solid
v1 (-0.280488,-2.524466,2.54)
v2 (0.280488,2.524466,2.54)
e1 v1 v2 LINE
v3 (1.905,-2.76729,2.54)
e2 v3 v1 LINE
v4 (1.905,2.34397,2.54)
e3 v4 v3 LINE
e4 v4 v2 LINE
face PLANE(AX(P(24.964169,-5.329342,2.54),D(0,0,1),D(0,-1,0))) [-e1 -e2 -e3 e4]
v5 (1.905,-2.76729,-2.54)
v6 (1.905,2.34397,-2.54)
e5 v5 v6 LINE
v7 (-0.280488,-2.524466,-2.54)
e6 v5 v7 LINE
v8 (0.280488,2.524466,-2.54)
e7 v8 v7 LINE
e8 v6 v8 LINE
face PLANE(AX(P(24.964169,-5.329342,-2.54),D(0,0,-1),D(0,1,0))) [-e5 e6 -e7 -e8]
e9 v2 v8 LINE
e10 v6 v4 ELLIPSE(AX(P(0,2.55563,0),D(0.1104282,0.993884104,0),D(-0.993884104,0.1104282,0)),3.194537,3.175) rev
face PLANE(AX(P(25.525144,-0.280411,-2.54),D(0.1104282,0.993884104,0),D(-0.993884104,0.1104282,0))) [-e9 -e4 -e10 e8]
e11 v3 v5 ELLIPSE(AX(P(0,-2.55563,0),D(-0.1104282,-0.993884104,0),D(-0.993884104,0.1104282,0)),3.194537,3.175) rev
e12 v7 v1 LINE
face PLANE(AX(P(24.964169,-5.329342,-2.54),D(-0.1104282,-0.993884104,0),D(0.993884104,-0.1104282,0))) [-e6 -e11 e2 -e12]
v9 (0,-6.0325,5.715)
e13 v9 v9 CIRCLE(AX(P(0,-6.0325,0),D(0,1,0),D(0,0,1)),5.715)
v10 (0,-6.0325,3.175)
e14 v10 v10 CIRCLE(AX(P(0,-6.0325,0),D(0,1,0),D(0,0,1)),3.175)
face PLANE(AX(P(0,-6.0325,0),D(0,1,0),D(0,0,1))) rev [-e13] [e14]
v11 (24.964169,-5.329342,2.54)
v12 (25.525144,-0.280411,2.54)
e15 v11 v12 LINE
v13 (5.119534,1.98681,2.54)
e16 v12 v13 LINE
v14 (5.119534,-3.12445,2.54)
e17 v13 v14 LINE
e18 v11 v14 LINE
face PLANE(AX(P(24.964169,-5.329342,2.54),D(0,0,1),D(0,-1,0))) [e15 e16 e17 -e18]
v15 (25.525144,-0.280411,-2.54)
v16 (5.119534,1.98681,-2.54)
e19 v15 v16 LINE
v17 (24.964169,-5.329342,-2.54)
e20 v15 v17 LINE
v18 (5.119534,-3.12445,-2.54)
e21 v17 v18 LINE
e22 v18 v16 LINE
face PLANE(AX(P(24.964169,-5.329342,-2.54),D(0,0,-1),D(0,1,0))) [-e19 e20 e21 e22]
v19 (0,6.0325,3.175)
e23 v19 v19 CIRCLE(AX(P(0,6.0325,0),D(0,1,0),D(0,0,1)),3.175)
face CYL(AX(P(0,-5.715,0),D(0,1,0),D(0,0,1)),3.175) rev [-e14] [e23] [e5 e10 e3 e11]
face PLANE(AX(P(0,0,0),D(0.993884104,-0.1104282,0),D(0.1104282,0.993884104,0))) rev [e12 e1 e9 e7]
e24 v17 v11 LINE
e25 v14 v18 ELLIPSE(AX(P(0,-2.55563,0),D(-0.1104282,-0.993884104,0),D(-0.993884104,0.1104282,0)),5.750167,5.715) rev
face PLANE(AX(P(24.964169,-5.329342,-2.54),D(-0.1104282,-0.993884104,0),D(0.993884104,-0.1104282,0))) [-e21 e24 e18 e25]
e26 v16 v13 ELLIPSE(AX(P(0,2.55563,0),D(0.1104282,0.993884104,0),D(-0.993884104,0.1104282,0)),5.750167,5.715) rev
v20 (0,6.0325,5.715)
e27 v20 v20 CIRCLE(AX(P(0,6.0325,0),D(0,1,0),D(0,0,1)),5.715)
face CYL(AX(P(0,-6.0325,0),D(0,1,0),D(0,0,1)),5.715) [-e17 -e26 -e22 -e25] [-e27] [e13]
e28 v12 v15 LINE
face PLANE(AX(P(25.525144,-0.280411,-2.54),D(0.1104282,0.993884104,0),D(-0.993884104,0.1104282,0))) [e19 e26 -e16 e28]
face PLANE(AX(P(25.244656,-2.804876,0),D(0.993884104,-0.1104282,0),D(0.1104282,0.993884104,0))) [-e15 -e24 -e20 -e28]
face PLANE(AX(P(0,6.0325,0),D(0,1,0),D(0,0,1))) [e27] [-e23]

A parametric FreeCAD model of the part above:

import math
import FreeCAD as App
import Part
import Sketcher
Q = App.Units.Quantity

doc = App.newDocument("Part")
body = doc.addObject("PartDesign::Body", "Body")

# Sketch on XY plane
sketch1 = body.newObject("Sketcher::SketchObject", "Sketch")
sketch1.AttachmentSupport = (doc.getObject("XY_Plane"), [""])
sketch1.MapMode = "FlatFace"
sketch1.addGeometry([
    Part.LineSegment(App.Vector(0, 6, 0), App.Vector(0, -6, 0)),
    Part.ArcOfCircle(Part.Circle(App.Vector(0, 0, 0), App.Vector(0, 0, 1), 6), math.radians(-90), math.radians(90)),
], False)
sketch1.addConstraint([
    Sketcher.Constraint("Coincident", 0, 1, 1, 2),
    Sketcher.Constraint("Coincident", 1, 1, 0, 2),
    Sketcher.Constraint("Vertical", 0),
    Sketcher.Constraint("Coincident", 1, 3, -1, 1),
    Sketcher.Constraint("PointOnObject", 0, 1, -2),
    Sketcher.Constraint("Radius", 1, Q("0.225 in")),
])
revolution = body.newObject("PartDesign::Revolution", "Revolution")
revolution.Profile = sketch1
revolution.ReferenceAxis = (sketch1, ["V_Axis"])
revolution.Angle = 360

# Sketch on XZ plane
sketch2 = body.newObject("Sketcher::SketchObject", "Sketch001")
sketch2.AttachmentSupport = (doc.getObject("XZ_Plane"), [""])
sketch2.MapMode = "FlatFace"
sketch2.addGeometry(Part.Circle(App.Vector(0, 0, 0), App.Vector(0, 0, 1), 3.2), False)
sketch2.addConstraint([
    Sketcher.Constraint("Coincident", 0, 3, -1, 1),
    Sketcher.Constraint("Diameter", 0, Q("0.25 in")),
])
pocket1 = body.newObject("PartDesign::Pocket", "Pocket")
pocket1.Profile = sketch2
pocket1.Type = "ThroughAll"
pocket1.Midplane = True

# Sketch on XZ plane
sketch3 = body.newObject("Sketcher::SketchObject", "Sketch002")
sketch3.AttachmentSupport = (doc.getObject("XZ_Plane"), [""])
sketch3.MapMode = "FlatFace"
sketch3.addGeometry([
    Part.Circle(App.Vector(0, 0, 0), App.Vector(0, 0, 1), 5.7),
    Part.Circle(App.Vector(0, 0, 0), App.Vector(0, 0, 1), 3.2),
], False)
sketch3.addConstraint([
    Sketcher.Constraint("Coincident", 0, 3, -1, 1),
    Sketcher.Constraint("Coincident", 1, 3, -1, 1),
    Sketcher.Constraint("Diameter", 0, Q("0.45 in")),
    Sketcher.Constraint("Diameter", 1, Q("0.25 in")),
])
pad1 = body.newObject("PartDesign::Pad", "Pad")
pad1.Profile = sketch3
pad1.Type = "TwoLengths"
pad1.Length = Q("0.2375 in")
pad1.Length2 = Q("0.2375 in")
pad1.Reversed = True

# Sketch on an angled plane
sketch4 = body.newObject("Sketcher::SketchObject", "Sketch003")
sketch4.Placement = App.Placement(App.Vector(0, 0, 0), App.Rotation(App.Vector(0, 0, -1), App.Vector(-0.1104282, -0.993884104, 0), App.Vector(-0.993884104, 0.1104282, 0), "ZXY"))
sketch4.addGeometry([
    Part.LineSegment(App.Vector(-3, 3, 0), App.Vector(-3, -3, 0)),
    Part.LineSegment(App.Vector(-3, -3, 0), App.Vector(3, -3, 0)),
    Part.LineSegment(App.Vector(3, -3, 0), App.Vector(3, 3, 0)),
    Part.LineSegment(App.Vector(3, 3, 0), App.Vector(-3, 3, 0)),
], False)
sketch4.addConstraint([
    Sketcher.Constraint("Coincident", 0, 2, 1, 1),
    Sketcher.Constraint("Coincident", 1, 2, 2, 1),
    Sketcher.Constraint("Coincident", 2, 2, 3, 1),
    Sketcher.Constraint("Coincident", 3, 2, 0, 1),
    Sketcher.Constraint("Vertical", 0),
    Sketcher.Constraint("Horizontal", 1),
    Sketcher.Constraint("Vertical", 2),
    Sketcher.Constraint("Horizontal", 3),
    Sketcher.Constraint("Symmetric", 0, 2, 2, 2, -1, 1),
    Sketcher.Constraint("Equal", 3, 0),
    Sketcher.Constraint("DistanceX", 1, 1, 1, 2, Q("0.2 in")),
])
pad2 = body.newObject("PartDesign::Pad", "Pad001")
pad2.Profile = sketch4
pad2.Length = Q("1 in")
pad2.Reversed = True

doc.recompute()
